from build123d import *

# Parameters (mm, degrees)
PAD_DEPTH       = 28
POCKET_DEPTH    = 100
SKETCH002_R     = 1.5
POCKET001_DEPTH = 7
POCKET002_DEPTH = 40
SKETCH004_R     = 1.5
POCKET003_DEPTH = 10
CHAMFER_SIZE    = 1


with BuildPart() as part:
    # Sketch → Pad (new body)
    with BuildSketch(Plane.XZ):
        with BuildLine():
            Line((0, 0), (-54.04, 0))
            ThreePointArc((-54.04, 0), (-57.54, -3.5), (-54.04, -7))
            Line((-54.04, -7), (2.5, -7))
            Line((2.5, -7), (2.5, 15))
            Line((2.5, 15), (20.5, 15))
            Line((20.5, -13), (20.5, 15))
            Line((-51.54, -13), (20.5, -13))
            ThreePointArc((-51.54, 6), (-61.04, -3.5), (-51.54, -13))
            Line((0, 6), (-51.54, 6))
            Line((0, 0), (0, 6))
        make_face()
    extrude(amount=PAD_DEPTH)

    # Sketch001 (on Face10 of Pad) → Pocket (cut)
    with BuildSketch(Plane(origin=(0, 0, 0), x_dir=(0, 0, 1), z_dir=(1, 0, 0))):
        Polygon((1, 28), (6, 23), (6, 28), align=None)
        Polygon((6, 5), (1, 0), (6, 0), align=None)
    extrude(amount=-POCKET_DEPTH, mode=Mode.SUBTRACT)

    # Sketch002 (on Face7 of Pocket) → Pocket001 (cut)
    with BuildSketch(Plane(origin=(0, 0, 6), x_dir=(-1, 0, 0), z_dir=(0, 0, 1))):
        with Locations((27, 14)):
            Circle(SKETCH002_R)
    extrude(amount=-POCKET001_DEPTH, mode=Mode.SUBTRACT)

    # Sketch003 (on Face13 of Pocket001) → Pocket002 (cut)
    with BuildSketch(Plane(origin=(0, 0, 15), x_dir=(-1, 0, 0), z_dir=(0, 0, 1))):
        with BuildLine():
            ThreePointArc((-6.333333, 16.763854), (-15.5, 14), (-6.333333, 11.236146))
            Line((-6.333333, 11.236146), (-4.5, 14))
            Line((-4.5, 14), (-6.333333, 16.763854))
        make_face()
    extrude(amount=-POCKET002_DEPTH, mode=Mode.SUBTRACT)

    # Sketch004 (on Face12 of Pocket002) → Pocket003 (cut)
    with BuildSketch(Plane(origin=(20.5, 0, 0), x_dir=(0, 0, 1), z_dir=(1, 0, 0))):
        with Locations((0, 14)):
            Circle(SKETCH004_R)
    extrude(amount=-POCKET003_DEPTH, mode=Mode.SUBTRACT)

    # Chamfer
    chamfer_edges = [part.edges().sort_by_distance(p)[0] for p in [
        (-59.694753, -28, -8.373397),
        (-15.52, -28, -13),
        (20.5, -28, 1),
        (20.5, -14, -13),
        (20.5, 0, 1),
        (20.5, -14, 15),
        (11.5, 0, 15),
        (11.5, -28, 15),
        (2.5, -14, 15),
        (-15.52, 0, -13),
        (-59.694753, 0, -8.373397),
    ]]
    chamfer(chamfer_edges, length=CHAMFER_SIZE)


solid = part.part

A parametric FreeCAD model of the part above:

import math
import FreeCAD as App
import Part
import Sketcher
Q = App.Units.Quantity


def edges_at(feature, points):
    """Names of the edges that pass closest to the given points."""
    edges = feature.Shape.Edges
    near = lambda p: min(range(len(edges)), key=lambda i: edges[i].distToShape(Part.Vertex(*p))[0])
    return sorted({f"Edge{near(p) + 1}" for p in points})


def add_polygon(sketch, points):
    """Adds a closed chain of lines whose ends are joined by coincident constraints."""
    first, n = sketch.GeometryCount, len(points)
    for a, b in zip(points, points[1:] + points[:1]):
        sketch.addGeometry(Part.LineSegment(App.Vector(*a, 0), App.Vector(*b, 0)), False)
    for i in range(n):
        sketch.addConstraint(Sketcher.Constraint("Coincident", first + i, 2, first + (i + 1) % n, 1))

doc = App.newDocument("Part")
body = doc.addObject("PartDesign::Body", "Body")

sketch1 = doc.addObject("Sketcher::SketchObject", "Sketch")
body.addObject(sketch1)
sketch1.AttachmentSupport = (doc.XZ_Plane, [""])
sketch1.MapMode = "FlatFace"
sketch1.addGeometry(Part.LineSegment(App.Vector(-54, 0, 0), App.Vector(0, 0, 0)), False)
sketch1.addGeometry(Part.LineSegment(App.Vector(0, 0, 0), App.Vector(0, 6, 0)), False)
sketch1.addGeometry(Part.LineSegment(App.Vector(0, 6, 0), App.Vector(-51.5, 6, 0)), False)
sketch1.addGeometry(Part.ArcOfCircle(Part.Circle(App.Vector(-51.5, -3.5, 0), App.Vector(0, 0, 1), 9.5), math.radians(90), math.radians(270)), False)
sketch1.addGeometry(Part.LineSegment(App.Vector(-51.5, -13, 0), App.Vector(20.5, -13, 0)), False)
sketch1.addGeometry(Part.LineSegment(App.Vector(20.5, -13, 0), App.Vector(20.5, 15, 0)), False)
sketch1.addGeometry(Part.LineSegment(App.Vector(20.5, 15, 0), App.Vector(2.5, 15, 0)), False)
sketch1.addGeometry(Part.LineSegment(App.Vector(2.5, 15, 0), App.Vector(2.5, -7, 0)), False)
sketch1.addGeometry(Part.LineSegment(App.Vector(2.5, -7, 0), App.Vector(-54, -7, 0)), False)
sketch1.addGeometry(Part.ArcOfCircle(Part.Circle(App.Vector(-54, -3.5, 0), App.Vector(0, 0, 1), 3.5), math.radians(90), math.radians(270)), False)
sketch1.addConstraint(Sketcher.Constraint("Coincident", 0, 2, 1, 1))
sketch1.addConstraint(Sketcher.Constraint("Coincident", 1, 2, 2, 1))
sketch1.addConstraint(Sketcher.Constraint("Tangent", 2, 2, 3, 1))
sketch1.addConstraint(Sketcher.Constraint("Tangent", 3, 2, 4, 1))
sketch1.addConstraint(Sketcher.Constraint("Coincident", 4, 2, 5, 1))
sketch1.addConstraint(Sketcher.Constraint("Coincident", 5, 2, 6, 1))
sketch1.addConstraint(Sketcher.Constraint("Coincident", 6, 2, 7, 1))
sketch1.addConstraint(Sketcher.Constraint("Coincident", 7, 2, 8, 1))
sketch1.addConstraint(Sketcher.Constraint("Tangent", 8, 2, 9, 2))
sketch1.addConstraint(Sketcher.Constraint("Tangent", 9, 1, 0, 1))
sketch1.addConstraint(Sketcher.Constraint("Horizontal", 0))
sketch1.addConstraint(Sketcher.Constraint("Vertical", 1))
sketch1.addConstraint(Sketcher.Constraint("Horizontal", 2))
sketch1.addConstraint(Sketcher.Constraint("Horizontal", 4))
sketch1.addConstraint(Sketcher.Constraint("Vertical", 5))
sketch1.addConstraint(Sketcher.Constraint("Horizontal", 6))
sketch1.addConstraint(Sketcher.Constraint("Vertical", 7))
sketch1.addConstraint(Sketcher.Constraint("Horizontal", 8))
sketch1.addConstraint(Sketcher.Constraint("Coincident", 0, 2, -1, 1))
sketch1.addConstraint(Sketcher.Constraint("Horizontal", 3, 3, 9, 3))
sketch1.addConstraint(Sketcher.Constraint("Radius", 3, Q("9.5 mm")))
sketch1.addConstraint(Sketcher.Constraint("Radius", 9, Q("3.5 mm")))
sketch1.addConstraint(Sketcher.Constraint("DistanceX", 6, 2, 6, 1, Q("18 mm")))
sketch1.addConstraint(Sketcher.Constraint("DistanceY", 5, 1, 5, 2, Q("28 mm")))
sketch1.addConstraint(Sketcher.Constraint("DistanceX", 0, 1, 0, 2, Q("54.04 mm")))
sketch1.addConstraint(Sketcher.Constraint("DistanceX", 2, 2, 2, 1, Q("51.54 mm")))
sketch1.addConstraint(Sketcher.Constraint("DistanceX", 4, 1, 4, 2, Q("72.04 mm")))
pad1 = doc.addObject("PartDesign::Pad", "Pad")
body.addObject(pad1)
pad1.Profile = sketch1
pad1.Length = 28

sketch2 = doc.addObject("Sketcher::SketchObject", "Sketch001")
body.addObject(sketch2)
sketch2.AttachmentSupport = (doc.YZ_Plane, [""])
sketch2.MapMode = "FlatFace"
add_polygon(sketch2, [(-28, 1), (-23, 6), (-28, 6)])
add_polygon(sketch2, [(-5, 6), (0, 1), (0, 6)])
sketch2.addConstraint(Sketcher.Constraint("Horizontal", 1))
sketch2.addConstraint(Sketcher.Constraint("Vertical", 2))
sketch2.addConstraint(Sketcher.Constraint("Vertical", 4))
sketch2.addConstraint(Sketcher.Constraint("Horizontal", 5))
sketch2.addConstraint(Sketcher.Constraint("PointOnObject", 3, 2, -2))
sketch2.addConstraint(Sketcher.Constraint("Perpendicular", 0, 3))
sketch2.addConstraint(Sketcher.Constraint("Horizontal", 2, 2, 3, 2))
sketch2.addConstraint(Sketcher.Constraint("Horizontal", 1, 2, 4, 2))
sketch2.addConstraint(Sketcher.Constraint("Equal", 1, 5))
sketch2.addConstraint(Sketcher.Constraint("DistanceX", 1, 2, 1, 1, Q("5 mm")))
sketch2.addConstraint(Sketcher.Constraint("DistanceX", 0, 2, -1, 1, Q("23 mm")))
sketch2.addConstraint(Sketcher.Constraint("DistanceY", -1, 1, 0, 2, Q("6 mm")))
pocket1 = doc.addObject("PartDesign::Pocket", "Pocket")
body.addObject(pocket1)
pocket1.Profile = sketch2
pocket1.Length = 100

sketch3 = doc.addObject("Sketcher::SketchObject", "Sketch002")
body.addObject(sketch3)
sketch3.AttachmentSupport = (doc.XY_Plane, [""])
sketch3.MapMode = "FlatFace"
sketch3.AttachmentOffset = App.Placement(App.Vector(0, 0, 6), App.Rotation())
sketch3.addGeometry(Part.Circle(App.Vector(-27, -14, 0), App.Vector(0, 0, 1), 1.5), False)
sketch3.addConstraint(Sketcher.Constraint("Diameter", 0, Q("3 mm")))
sketch3.addConstraint(Sketcher.Constraint("DistanceX", 0, 3, -1, 1, Q("27 mm")))
sketch3.addConstraint(Sketcher.Constraint("DistanceY", 0, 3, -1, 1, Q("14 mm")))
pocket2 = doc.addObject("PartDesign::Pocket", "Pocket001")
body.addObject(pocket2)
pocket2.Profile = sketch3
pocket2.Length = 7

sketch4 = doc.addObject("Sketcher::SketchObject", "Sketch003")
body.addObject(sketch4)
sketch4.AttachmentSupport = (doc.XY_Plane, [""])
sketch4.MapMode = "FlatFace"
sketch4.AttachmentOffset = App.Placement(App.Vector(0, 0, 15), App.Rotation())
sketch4.addGeometry(Part.ArcOfCircle(Part.Circle(App.Vector(10.5, -14, 0), App.Vector(0, 0, 1), 5), math.radians(-146), math.radians(146)), False)
sketch4.addGeometry(Part.LineSegment(App.Vector(6.3, -11.2, 0), App.Vector(4.5, -14, 0)), False)
sketch4.addGeometry(Part.LineSegment(App.Vector(4.5, -14, 0), App.Vector(6.3, -16.8, 0)), False)
sketch4.addConstraint(Sketcher.Constraint("Tangent", 0, 2, 1, 1))
sketch4.addConstraint(Sketcher.Constraint("Coincident", 1, 2, 2, 1))
sketch4.addConstraint(Sketcher.Constraint("Tangent", 2, 2, 0, 1))
sketch4.addConstraint(Sketcher.Constraint("Horizontal", 0, 3, 1, 2))
sketch4.addConstraint(Sketcher.Constraint("Radius", 0, Q("5 mm")))
sketch4.addConstraint(Sketcher.Constraint("DistanceY", 0, 3, -1, 1, Q("14 mm")))
sketch4.addConstraint(Sketcher.Constraint("DistanceX", 1, 2, 0, 3, Q("6 mm")))
sketch4.addConstraint(Sketcher.Constraint("DistanceX", -1, 1, 0, 3, Q("10.5 mm")))
pocket3 = doc.addObject("PartDesign::Pocket", "Pocket002")
body.addObject(pocket3)
pocket3.Profile = sketch4
pocket3.Length = 40

sketch5 = doc.addObject("Sketcher::SketchObject", "Sketch004")
body.addObject(sketch5)
sketch5.AttachmentSupport = (doc.YZ_Plane, [""])
sketch5.MapMode = "FlatFace"
sketch5.AttachmentOffset = App.Placement(App.Vector(0, 0, 20.5), App.Rotation())
sketch5.addGeometry(Part.Circle(App.Vector(-14, 0, 0), App.Vector(0, 0, 1), 1.5), False)
sketch5.addConstraint(Sketcher.Constraint("PointOnObject", 0, 3, -1))
sketch5.addConstraint(Sketcher.Constraint("Diameter", 0, Q("3 mm")))
sketch5.addConstraint(Sketcher.Constraint("DistanceX", 0, 3, -1, 1, Q("14 mm")))
pocket4 = doc.addObject("PartDesign::Pocket", "Pocket003")
body.addObject(pocket4)
pocket4.Profile = sketch5
pocket4.Length = 10
doc.recompute()

chamfer = doc.addObject("PartDesign::Chamfer", "Chamfer")
body.addObject(chamfer)
chamfer.Base = (pocket4, edges_at(pocket4, [
    (-59.695, -28, -8.373),
    (-15.52, -28, -13),
    (20.5, -28, 1),
    (20.5, -14, -13),
    (20.5, 0, 1),
    (20.5, -14, 15),
    (11.5, 0, 15),
    (11.5, -28, 15),
    (2.5, -14, 15),
    (-15.52, 0, -13),
    (-59.695, 0, -8.373),
]))
chamfer.Size = 1

doc.recompute()
